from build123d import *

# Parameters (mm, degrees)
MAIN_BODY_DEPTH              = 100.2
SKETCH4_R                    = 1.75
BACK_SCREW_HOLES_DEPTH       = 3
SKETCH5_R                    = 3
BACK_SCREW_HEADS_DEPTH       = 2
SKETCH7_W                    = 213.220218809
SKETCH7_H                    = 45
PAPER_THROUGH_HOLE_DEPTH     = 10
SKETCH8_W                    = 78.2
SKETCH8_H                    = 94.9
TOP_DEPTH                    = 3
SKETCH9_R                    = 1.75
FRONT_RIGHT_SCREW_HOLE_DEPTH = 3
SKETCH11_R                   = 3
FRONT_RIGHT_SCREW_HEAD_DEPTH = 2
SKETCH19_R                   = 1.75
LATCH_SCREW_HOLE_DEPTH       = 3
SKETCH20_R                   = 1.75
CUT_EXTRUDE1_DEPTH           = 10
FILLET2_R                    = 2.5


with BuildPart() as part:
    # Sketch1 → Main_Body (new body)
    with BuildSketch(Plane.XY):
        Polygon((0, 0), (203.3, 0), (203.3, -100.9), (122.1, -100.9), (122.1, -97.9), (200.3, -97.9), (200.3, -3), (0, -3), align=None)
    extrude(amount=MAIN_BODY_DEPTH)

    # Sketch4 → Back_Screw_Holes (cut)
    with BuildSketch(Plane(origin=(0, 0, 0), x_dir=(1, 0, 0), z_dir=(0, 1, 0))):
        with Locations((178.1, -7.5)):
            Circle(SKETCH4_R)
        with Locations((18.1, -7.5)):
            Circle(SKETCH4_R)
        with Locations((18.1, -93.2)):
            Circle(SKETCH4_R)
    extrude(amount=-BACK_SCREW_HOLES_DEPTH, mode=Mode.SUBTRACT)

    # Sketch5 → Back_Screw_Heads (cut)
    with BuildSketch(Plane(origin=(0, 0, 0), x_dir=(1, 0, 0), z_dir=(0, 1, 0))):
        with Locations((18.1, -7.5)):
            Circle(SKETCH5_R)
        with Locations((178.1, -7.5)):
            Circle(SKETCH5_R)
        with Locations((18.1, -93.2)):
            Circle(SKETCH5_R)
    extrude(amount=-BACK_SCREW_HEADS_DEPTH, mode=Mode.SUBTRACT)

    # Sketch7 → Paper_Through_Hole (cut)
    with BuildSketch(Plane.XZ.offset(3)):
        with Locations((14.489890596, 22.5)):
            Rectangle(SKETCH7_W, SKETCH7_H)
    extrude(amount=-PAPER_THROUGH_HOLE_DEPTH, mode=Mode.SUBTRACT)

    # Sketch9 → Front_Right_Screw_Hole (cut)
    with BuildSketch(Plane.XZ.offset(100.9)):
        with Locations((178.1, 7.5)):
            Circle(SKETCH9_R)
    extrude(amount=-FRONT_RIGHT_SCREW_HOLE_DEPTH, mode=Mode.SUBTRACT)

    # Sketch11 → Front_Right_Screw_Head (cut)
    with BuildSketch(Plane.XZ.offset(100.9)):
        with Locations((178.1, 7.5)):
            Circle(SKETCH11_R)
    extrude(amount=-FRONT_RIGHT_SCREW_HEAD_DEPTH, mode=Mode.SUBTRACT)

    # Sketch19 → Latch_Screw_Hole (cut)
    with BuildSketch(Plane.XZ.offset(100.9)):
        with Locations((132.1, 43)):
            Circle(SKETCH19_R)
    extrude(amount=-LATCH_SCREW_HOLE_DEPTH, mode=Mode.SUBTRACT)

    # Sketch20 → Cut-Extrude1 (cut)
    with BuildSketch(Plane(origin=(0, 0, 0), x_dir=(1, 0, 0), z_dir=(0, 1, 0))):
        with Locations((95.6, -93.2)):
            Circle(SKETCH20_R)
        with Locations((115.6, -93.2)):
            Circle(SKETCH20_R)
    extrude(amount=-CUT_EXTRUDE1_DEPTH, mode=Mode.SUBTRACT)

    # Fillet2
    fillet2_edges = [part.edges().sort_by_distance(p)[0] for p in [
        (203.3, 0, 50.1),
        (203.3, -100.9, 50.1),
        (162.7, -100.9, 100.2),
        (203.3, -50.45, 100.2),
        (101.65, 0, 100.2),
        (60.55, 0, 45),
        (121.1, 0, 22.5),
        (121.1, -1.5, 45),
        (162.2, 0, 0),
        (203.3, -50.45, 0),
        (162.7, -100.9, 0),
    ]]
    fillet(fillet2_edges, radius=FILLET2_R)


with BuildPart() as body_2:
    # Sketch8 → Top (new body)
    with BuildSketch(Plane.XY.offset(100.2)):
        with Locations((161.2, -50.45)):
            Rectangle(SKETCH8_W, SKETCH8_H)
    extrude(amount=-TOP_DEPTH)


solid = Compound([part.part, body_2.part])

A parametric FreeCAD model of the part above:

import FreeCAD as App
import Part
import Sketcher
from FreeCAD import Vector


def edges_at(feature, points):
    """Names of the edges that pass closest to the given points."""
    edges = feature.Shape.Edges
    near = lambda p: min(range(len(edges)), key=lambda i: edges[i].distToShape(Part.Vertex(*p))[0])
    return sorted({f"Edge{near(p) + 1}" for p in points})


def add_polygon(sketch, points):
    """Adds a closed chain of lines whose ends are joined by coincident constraints."""
    first, n = sketch.GeometryCount, len(points)
    for a, b in zip(points, points[1:] + points[:1]):
        sketch.addGeometry(Part.LineSegment(App.Vector(*a, 0), App.Vector(*b, 0)), False)
    for i in range(n):
        sketch.addConstraint(Sketcher.Constraint("Coincident", first + i, 2, first + (i + 1) % n, 1))

doc = App.newDocument("Part")
body = doc.addObject("PartDesign::Body", "Body")

# Sketch on XY plane
sketch1 = body.newObject("Sketcher::SketchObject", "Sketch")
sketch1.AttachmentSupport = (doc.getObject("XY_Plane"), [""])
sketch1.MapMode = "FlatFace"
add_polygon(sketch1, [(203.3, 0), (0, 0), (0, -3), (200.3, -3), (200.3, -97.9), (122.1, -97.9), (122.1, -100.9), (203.3, -100.9)])  # lines 0-7
sketch1.addConstraint([
    Sketcher.Constraint("Horizontal", 0),
    Sketcher.Constraint("Vertical", 1),
    Sketcher.Constraint("Horizontal", 2),
    Sketcher.Constraint("Vertical", 3),
    Sketcher.Constraint("Horizontal", 4),
    Sketcher.Constraint("Vertical", 5),
    Sketcher.Constraint("Horizontal", 6),
    Sketcher.Constraint("Vertical", 7),
    Sketcher.Constraint("Coincident", 0, 2, -1, 1),
    Sketcher.Constraint("Equal", 1, 5),
    Sketcher.Constraint("DistanceY", 1, 2, 1, 1, 3.0),
    Sketcher.Constraint("DistanceX", 0, 2, 0, 1, 203.3),
    Sketcher.Constraint("DistanceX", 2, 1, 2, 2, 200.3),
    Sketcher.Constraint("DistanceX", 4, 2, 4, 1, 78.2),
    Sketcher.Constraint("DistanceY", 3, 2, 3, 1, 94.9),
])
pad1 = body.newObject("PartDesign::Pad", "Pad")
pad1.Profile = sketch1
pad1.Length = 100.2

# Sketch on XZ plane
sketch2 = body.newObject("Sketcher::SketchObject", "Sketch001")
sketch2.AttachmentSupport = (doc.getObject("XZ_Plane"), [""])
sketch2.MapMode = "FlatFace"
sketch2.addGeometry([
    Part.Circle(Vector(178.1, 7.5, 0), Vector(0, 0, 1), 1.8),
    Part.Circle(Vector(18.1, 7.5, 0), Vector(0, 0, 1), 1.8),
    Part.Circle(Vector(18.1, 93.2, 0), Vector(0, 0, 1), 1.8),
], False)
sketch2.addConstraint([
    Sketcher.Constraint("Equal", 0, 1),
    Sketcher.Constraint("Equal", 1, 2),
    Sketcher.Constraint("Horizontal", 0, 3, 1, 3),
    Sketcher.Constraint("Vertical", 1, 3, 2, 3),
    Sketcher.Constraint("Diameter", 0, 3.5),
    Sketcher.Constraint("DistanceX", 1, 3, 0, 3, 160.0),
    Sketcher.Constraint("DistanceX", -1, 1, 0, 3, 178.1),
    Sketcher.Constraint("DistanceY", -1, 1, 0, 3, 7.5),
    Sketcher.Constraint("DistanceY", -1, 1, 2, 3, 93.2),
])
pocket1 = body.newObject("PartDesign::Pocket", "Pocket")
pocket1.Profile = sketch2
pocket1.Length = 3
pocket1.Reversed = True

# Sketch on XZ plane
sketch3 = body.newObject("Sketcher::SketchObject", "Sketch002")
sketch3.AttachmentSupport = (doc.getObject("XZ_Plane"), [""])
sketch3.MapMode = "FlatFace"
sketch3.addGeometry([
    Part.Circle(Vector(18.1, 7.5, 0), Vector(0, 0, 1), 3),
    Part.Circle(Vector(178.1, 7.5, 0), Vector(0, 0, 1), 3),
    Part.Circle(Vector(18.1, 93.2, 0), Vector(0, 0, 1), 3),
], False)
sketch3.addConstraint([
    Sketcher.Constraint("Equal", 0, 1),
    Sketcher.Constraint("Equal", 1, 2),
    Sketcher.Constraint("Horizontal", 0, 3, 1, 3),
    Sketcher.Constraint("Vertical", 0, 3, 2, 3),
    Sketcher.Constraint("Diameter", 0, 6.0),
    Sketcher.Constraint("DistanceX", 0, 3, 1, 3, 160.0),
    Sketcher.Constraint("DistanceX", -1, 1, 0, 3, 18.1),
    Sketcher.Constraint("DistanceY", -1, 1, 0, 3, 7.5),
    Sketcher.Constraint("DistanceY", -1, 1, 2, 3, 93.2),
])
pocket2 = body.newObject("PartDesign::Pocket", "Pocket001")
pocket2.Profile = sketch3
pocket2.Length = 2
pocket2.Reversed = True

# Sketch on XZ plane
sketch4 = body.newObject("Sketcher::SketchObject", "Sketch003")
sketch4.AttachmentSupport = (doc.getObject("XZ_Plane"), [""])
sketch4.MapMode = "FlatFace"
sketch4.AttachmentOffset = App.Placement(Vector(0, 0, 3), App.Rotation())
add_polygon(sketch4, [(-92, 45), (-92, 0), (121, 0), (121, 45)])  # lines 0-3
sketch4.addConstraint([
    Sketcher.Constraint("Vertical", 0),
    Sketcher.Constraint("Horizontal", 1),
    Sketcher.Constraint("Vertical", 2),
    Sketcher.Constraint("Horizontal", 3),
    Sketcher.Constraint("PointOnObject", 0, 2, -1),
    Sketcher.Constraint("DistanceY", 0, 2, 0, 1, 45.0),
    Sketcher.Constraint("DistanceX", -1, 1, 1, 2, 121.1),
    Sketcher.Constraint("DistanceX", 1, 1, 1, 2, 213.220219),
])
pocket3 = body.newObject("PartDesign::Pocket", "Pocket002")
pocket3.Profile = sketch4
pocket3.Length = 10

# Sketch on XZ plane
sketch5 = body.newObject("Sketcher::SketchObject", "Sketch004")
sketch5.AttachmentSupport = (doc.getObject("XZ_Plane"), [""])
sketch5.MapMode = "FlatFace"
sketch5.AttachmentOffset = App.Placement(Vector(0, 0, 100.9), App.Rotation())
sketch5.addGeometry(Part.Circle(Vector(178.1, 7.5, 0), Vector(0, 0, 1), 1.8), False)
sketch5.addConstraint([
    Sketcher.Constraint("Diameter", 0, 3.5),
    Sketcher.Constraint("DistanceX", -1, 1, 0, 3, 178.1),
    Sketcher.Constraint("DistanceY", -1, 1, 0, 3, 7.5),
])
pocket4 = body.newObject("PartDesign::Pocket", "Pocket003")
pocket4.Profile = sketch5
pocket4.Length = 3

# Sketch on XZ plane
sketch6 = body.newObject("Sketcher::SketchObject", "Sketch005")
sketch6.AttachmentSupport = (doc.getObject("XZ_Plane"), [""])
sketch6.MapMode = "FlatFace"
sketch6.AttachmentOffset = App.Placement(Vector(0, 0, 100.9), App.Rotation())
sketch6.addGeometry(Part.Circle(Vector(178.1, 7.5, 0), Vector(0, 0, 1), 3), False)
sketch6.addConstraint([
    Sketcher.Constraint("Diameter", 0, 6.0),
    Sketcher.Constraint("DistanceX", -1, 1, 0, 3, 178.1),
    Sketcher.Constraint("DistanceY", -1, 1, 0, 3, 7.5),
])
pocket5 = body.newObject("PartDesign::Pocket", "Pocket004")
pocket5.Profile = sketch6
pocket5.Length = 2

# Sketch on XZ plane
sketch7 = body.newObject("Sketcher::SketchObject", "Sketch006")
sketch7.AttachmentSupport = (doc.getObject("XZ_Plane"), [""])
sketch7.MapMode = "FlatFace"
sketch7.AttachmentOffset = App.Placement(Vector(0, 0, 100.9), App.Rotation())
sketch7.addGeometry(Part.Circle(Vector(132.1, 43, 0), Vector(0, 0, 1), 1.8), False)
sketch7.addConstraint([
    Sketcher.Constraint("Diameter", 0, 3.5),
    Sketcher.Constraint("DistanceY", -1, 1, 0, 3, 43.0),
    Sketcher.Constraint("DistanceX", -1, 1, 0, 3, 132.1),
])
pocket6 = body.newObject("PartDesign::Pocket", "Pocket005")
pocket6.Profile = sketch7
pocket6.Length = 3

# Sketch on XZ plane
sketch8 = body.newObject("Sketcher::SketchObject", "Sketch007")
sketch8.AttachmentSupport = (doc.getObject("XZ_Plane"), [""])
sketch8.MapMode = "FlatFace"
sketch8.addGeometry([
    Part.Circle(Vector(95.6, 93.2, 0), Vector(0, 0, 1), 1.8),
    Part.Circle(Vector(115.6, 93.2, 0), Vector(0, 0, 1), 1.8),
], False)
sketch8.addConstraint([
    Sketcher.Constraint("Equal", 0, 1),
    Sketcher.Constraint("Horizontal", 0, 3, 1, 3),
    Sketcher.Constraint("Diameter", 0, 3.5),
    Sketcher.Constraint("DistanceX", 0, 3, 1, 3, 20.0),
    Sketcher.Constraint("DistanceX", -1, 1, 0, 3, 95.6),
    Sketcher.Constraint("DistanceY", -1, 1, 0, 3, 93.2),
])
pocket7 = body.newObject("PartDesign::Pocket", "Pocket006")
pocket7.Profile = sketch8
pocket7.Length = 10
pocket7.Reversed = True
doc.recompute()

fillet = body.newObject("PartDesign::Fillet", "Fillet")
fillet.Base = (pocket7, edges_at(pocket7, [
    (203.3, 0, 50.1),
    (203.3, -100.9, 50.1),
    (162.7, -100.9, 100.2),
    (203.3, -50.45, 100.2),
    (101.65, 0, 100.2),
    (60.55, 0, 45),
    (121.1, 0, 22.5),
    (121.1, -1.5, 45),
    (162.2, 0, 0),
    (203.3, -50.45, 0),
    (162.7, -100.9, 0),
]))
fillet.Radius = 2.5
body2 = doc.addObject("PartDesign::Body", "Body001")

# Sketch on XY plane
sketch9 = body2.newObject("Sketcher::SketchObject", "Sketch008")
sketch9.AttachmentSupport = (doc.getObject("XY_Plane001"), [""])
sketch9.MapMode = "FlatFace"
sketch9.AttachmentOffset = App.Placement(Vector(0, 0, 100.2), App.Rotation())
add_polygon(sketch9, [(122, -3), (122, -98), (200, -98), (200, -3)])  # lines 0-3
sketch9.addConstraint([
    Sketcher.Constraint("Vertical", 0),
    Sketcher.Constraint("Horizontal", 1),
    Sketcher.Constraint("Vertical", 2),
    Sketcher.Constraint("Horizontal", 3),
    Sketcher.Constraint("DistanceX", 1, 1, 1, 2, 78.2),
    Sketcher.Constraint("DistanceY", 0, 2, 0, 1, 94.9),
    Sketcher.Constraint("DistanceY", 2, 2, -1, 1, 3.0),
    Sketcher.Constraint("DistanceX", -1, 1, 0, 2, 122.1),
])
pad2 = body2.newObject("PartDesign::Pad", "Pad001")
pad2.Profile = sketch9
pad2.Length = 3
pad2.Reversed = True

doc.recompute()
